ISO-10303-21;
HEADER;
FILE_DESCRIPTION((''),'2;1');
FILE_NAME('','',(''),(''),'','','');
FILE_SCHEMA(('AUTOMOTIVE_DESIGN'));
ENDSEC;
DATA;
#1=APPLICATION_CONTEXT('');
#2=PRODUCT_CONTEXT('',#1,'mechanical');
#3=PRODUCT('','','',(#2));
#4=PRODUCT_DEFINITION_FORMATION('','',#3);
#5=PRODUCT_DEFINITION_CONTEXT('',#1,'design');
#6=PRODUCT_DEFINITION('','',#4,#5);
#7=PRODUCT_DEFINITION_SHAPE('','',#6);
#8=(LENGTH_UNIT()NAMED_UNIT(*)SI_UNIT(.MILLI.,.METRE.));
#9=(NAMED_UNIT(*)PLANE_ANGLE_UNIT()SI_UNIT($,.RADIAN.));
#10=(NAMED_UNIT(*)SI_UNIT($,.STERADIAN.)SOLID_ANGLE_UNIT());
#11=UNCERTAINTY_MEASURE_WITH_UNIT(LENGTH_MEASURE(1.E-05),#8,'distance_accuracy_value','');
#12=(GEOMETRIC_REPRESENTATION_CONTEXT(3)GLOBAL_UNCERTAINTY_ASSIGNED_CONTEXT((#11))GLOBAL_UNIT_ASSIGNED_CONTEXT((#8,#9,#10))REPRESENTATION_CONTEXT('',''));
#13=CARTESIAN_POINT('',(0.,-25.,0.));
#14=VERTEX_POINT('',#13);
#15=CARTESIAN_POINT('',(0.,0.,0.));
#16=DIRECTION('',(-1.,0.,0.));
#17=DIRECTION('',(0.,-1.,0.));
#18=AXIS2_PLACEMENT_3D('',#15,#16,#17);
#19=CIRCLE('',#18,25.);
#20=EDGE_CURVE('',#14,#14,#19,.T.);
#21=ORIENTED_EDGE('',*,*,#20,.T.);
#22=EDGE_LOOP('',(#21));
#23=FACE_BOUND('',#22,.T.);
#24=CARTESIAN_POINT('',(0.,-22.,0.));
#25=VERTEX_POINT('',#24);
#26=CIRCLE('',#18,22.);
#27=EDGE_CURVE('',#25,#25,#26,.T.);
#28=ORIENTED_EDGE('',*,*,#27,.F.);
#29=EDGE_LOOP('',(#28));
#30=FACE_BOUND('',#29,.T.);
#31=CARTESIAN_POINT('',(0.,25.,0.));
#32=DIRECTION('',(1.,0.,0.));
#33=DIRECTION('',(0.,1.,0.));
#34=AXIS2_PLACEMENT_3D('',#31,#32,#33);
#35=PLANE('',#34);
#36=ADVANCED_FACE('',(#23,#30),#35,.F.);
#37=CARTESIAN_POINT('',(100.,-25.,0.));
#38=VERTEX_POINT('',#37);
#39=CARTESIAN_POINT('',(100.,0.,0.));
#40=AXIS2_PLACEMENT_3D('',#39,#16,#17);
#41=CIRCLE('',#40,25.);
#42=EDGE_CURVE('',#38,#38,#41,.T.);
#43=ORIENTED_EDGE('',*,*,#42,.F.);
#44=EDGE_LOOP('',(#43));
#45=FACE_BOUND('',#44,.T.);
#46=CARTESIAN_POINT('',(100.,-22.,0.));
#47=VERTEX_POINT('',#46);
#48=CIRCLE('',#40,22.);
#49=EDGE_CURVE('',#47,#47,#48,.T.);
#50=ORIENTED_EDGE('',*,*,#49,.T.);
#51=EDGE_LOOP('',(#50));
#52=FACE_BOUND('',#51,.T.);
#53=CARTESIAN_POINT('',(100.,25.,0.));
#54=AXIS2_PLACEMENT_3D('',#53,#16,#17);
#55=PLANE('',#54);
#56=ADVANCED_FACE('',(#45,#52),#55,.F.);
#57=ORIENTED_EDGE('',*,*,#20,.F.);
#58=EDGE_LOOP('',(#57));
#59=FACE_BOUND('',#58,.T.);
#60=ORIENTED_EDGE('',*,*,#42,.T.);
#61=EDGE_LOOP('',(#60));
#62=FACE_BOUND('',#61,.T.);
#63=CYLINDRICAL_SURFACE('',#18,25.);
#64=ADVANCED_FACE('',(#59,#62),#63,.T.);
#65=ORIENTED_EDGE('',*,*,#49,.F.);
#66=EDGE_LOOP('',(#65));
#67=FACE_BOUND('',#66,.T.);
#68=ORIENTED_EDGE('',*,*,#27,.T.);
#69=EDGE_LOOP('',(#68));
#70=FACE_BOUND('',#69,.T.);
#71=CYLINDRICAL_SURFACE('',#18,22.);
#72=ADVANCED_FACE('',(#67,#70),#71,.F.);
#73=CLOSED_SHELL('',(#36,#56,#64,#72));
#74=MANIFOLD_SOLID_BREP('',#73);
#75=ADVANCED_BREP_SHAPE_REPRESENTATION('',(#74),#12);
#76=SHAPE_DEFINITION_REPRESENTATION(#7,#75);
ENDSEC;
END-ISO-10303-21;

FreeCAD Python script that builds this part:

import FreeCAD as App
import Part
import Sketcher
from FreeCAD import Vector
Q = App.Units.Quantity

doc = App.newDocument("Part")
body = doc.addObject("PartDesign::Body", "Body")

# Sketch on XY plane
sketch1 = body.newObject("Sketcher::SketchObject", "Sketch")
sketch1.AttachmentSupport = (doc.getObject("XY_Plane"), [""])
sketch1.MapMode = "FlatFace"
sketch1.addGeometry([
    Part.LineSegment(Vector(0, 25, 0), Vector(0, 22, 0)),
    Part.LineSegment(Vector(0, 22, 0), Vector(100, 22, 0)),
    Part.LineSegment(Vector(100, 22, 0), Vector(100, 25, 0)),
    Part.LineSegment(Vector(100, 25, 0), Vector(0, 25, 0)),
], False)
sketch1.addConstraint([
    Sketcher.Constraint("Coincident", 0, 2, 1, 1),
    Sketcher.Constraint("Coincident", 1, 2, 2, 1),
    Sketcher.Constraint("Coincident", 2, 2, 3, 1),
    Sketcher.Constraint("Coincident", 3, 2, 0, 1),
    Sketcher.Constraint("Vertical", 0),
    Sketcher.Constraint("Horizontal", 1),
    Sketcher.Constraint("Vertical", 2),
    Sketcher.Constraint("Horizontal", 3),
    Sketcher.Constraint("PointOnObject", 0, 2, -2),
    Sketcher.Constraint("DistanceX", 1, 1, 1, 2, Q("100 mm")),
    Sketcher.Constraint("DistanceY", 0, 2, 0, 1, Q("3 mm")),
    Sketcher.Constraint("DistanceY", -1, 1, 0, 2, Q("22 mm")),
])
revolution = body.newObject("PartDesign::Revolution", "Revolution")
revolution.Profile = sketch1
revolution.ReferenceAxis = (sketch1, ["H_Axis"])
revolution.Angle = 360

doc.recompute()
